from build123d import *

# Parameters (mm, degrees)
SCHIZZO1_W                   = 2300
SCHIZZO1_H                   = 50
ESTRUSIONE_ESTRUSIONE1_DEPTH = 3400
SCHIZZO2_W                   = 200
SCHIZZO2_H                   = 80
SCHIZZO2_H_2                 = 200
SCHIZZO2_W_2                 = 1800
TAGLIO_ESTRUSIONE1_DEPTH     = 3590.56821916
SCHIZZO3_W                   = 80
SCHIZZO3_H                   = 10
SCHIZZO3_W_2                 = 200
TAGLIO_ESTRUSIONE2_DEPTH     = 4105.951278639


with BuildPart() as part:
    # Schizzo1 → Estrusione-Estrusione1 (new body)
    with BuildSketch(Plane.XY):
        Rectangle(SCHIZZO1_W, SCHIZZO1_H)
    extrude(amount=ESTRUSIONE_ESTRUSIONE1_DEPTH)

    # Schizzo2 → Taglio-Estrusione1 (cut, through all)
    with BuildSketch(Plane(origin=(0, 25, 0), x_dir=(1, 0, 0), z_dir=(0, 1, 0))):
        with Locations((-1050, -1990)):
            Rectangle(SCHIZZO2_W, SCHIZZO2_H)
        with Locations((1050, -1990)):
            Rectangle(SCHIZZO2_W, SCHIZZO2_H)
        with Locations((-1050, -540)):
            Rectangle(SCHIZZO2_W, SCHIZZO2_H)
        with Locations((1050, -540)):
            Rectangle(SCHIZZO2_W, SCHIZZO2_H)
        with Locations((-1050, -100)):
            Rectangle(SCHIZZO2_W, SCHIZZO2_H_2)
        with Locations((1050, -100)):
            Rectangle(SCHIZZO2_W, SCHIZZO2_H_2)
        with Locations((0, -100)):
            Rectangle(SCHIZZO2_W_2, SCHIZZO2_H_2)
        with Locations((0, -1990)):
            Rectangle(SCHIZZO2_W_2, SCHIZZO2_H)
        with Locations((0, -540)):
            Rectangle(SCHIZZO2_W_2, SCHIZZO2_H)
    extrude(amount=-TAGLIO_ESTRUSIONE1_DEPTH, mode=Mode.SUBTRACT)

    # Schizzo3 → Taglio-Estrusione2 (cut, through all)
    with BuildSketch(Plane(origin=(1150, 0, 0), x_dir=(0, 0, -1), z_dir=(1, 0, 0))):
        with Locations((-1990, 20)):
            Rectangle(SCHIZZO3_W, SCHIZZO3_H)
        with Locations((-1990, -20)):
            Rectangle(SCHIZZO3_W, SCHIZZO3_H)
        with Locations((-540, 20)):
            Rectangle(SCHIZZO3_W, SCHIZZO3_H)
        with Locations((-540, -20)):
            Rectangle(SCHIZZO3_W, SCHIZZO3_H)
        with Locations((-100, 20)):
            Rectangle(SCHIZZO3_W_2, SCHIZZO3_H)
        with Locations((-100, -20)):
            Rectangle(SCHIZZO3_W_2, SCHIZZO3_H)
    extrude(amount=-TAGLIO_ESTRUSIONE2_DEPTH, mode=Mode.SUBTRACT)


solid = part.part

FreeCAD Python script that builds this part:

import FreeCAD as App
import Part
import Sketcher
Q = App.Units.Quantity

doc = App.newDocument("Part")
body = doc.addObject("PartDesign::Body", "Body")

sketch1 = doc.addObject("Sketcher::SketchObject", "Sketch")
body.addObject(sketch1)
sketch1.AttachmentSupport = (doc.XY_Plane, [""])
sketch1.MapMode = "FlatFace"
sketch1.addGeometry(Part.LineSegment(App.Vector(-1150, 25, 0), App.Vector(-1150, -25, 0)), False)
sketch1.addGeometry(Part.LineSegment(App.Vector(-1150, -25, 0), App.Vector(1150, -25, 0)), False)
sketch1.addGeometry(Part.LineSegment(App.Vector(1150, -25, 0), App.Vector(1150, 25, 0)), False)
sketch1.addGeometry(Part.LineSegment(App.Vector(1150, 25, 0), App.Vector(-1150, 25, 0)), False)
sketch1.addConstraint(Sketcher.Constraint("Coincident", 0, 2, 1, 1))
sketch1.addConstraint(Sketcher.Constraint("Coincident", 1, 2, 2, 1))
sketch1.addConstraint(Sketcher.Constraint("Coincident", 2, 2, 3, 1))
sketch1.addConstraint(Sketcher.Constraint("Coincident", 3, 2, 0, 1))
sketch1.addConstraint(Sketcher.Constraint("Vertical", 0))
sketch1.addConstraint(Sketcher.Constraint("Horizontal", 1))
sketch1.addConstraint(Sketcher.Constraint("Vertical", 2))
sketch1.addConstraint(Sketcher.Constraint("Horizontal", 3))
sketch1.addConstraint(Sketcher.Constraint("Symmetric", 0, 2, 2, 2, -1, 1))
sketch1.addConstraint(Sketcher.Constraint("DistanceX", 1, 1, 1, 2, Q("2300 mm")))
sketch1.addConstraint(Sketcher.Constraint("DistanceY", 0, 2, 0, 1, Q("50 mm")))
pad1 = doc.addObject("PartDesign::Pad", "Pad")
body.addObject(pad1)
pad1.Profile = sketch1
pad1.Length = 3400

sketch2 = doc.addObject("Sketcher::SketchObject", "Sketch001")
body.addObject(sketch2)
sketch2.AttachmentSupport = (doc.XZ_Plane, [""])
sketch2.MapMode = "FlatFace"
sketch2.AttachmentOffset = App.Placement(App.Vector(0, 0, -25), App.Rotation())
sketch2.addGeometry(Part.LineSegment(App.Vector(-1150, 1950, 0), App.Vector(-1150, 2030, 0)), False)
sketch2.addGeometry(Part.LineSegment(App.Vector(-1150, 2030, 0), App.Vector(-950, 2030, 0)), False)
sketch2.addGeometry(Part.LineSegment(App.Vector(-950, 2030, 0), App.Vector(-950, 1950, 0)), False)
sketch2.addGeometry(Part.LineSegment(App.Vector(-950, 1950, 0), App.Vector(-1150, 1950, 0)), False)
sketch2.addGeometry(Part.LineSegment(App.Vector(950, 1950, 0), App.Vector(950, 2030, 0)), False)
sketch2.addGeometry(Part.LineSegment(App.Vector(950, 2030, 0), App.Vector(1150, 2030, 0)), False)
sketch2.addGeometry(Part.LineSegment(App.Vector(1150, 2030, 0), App.Vector(1150, 1950, 0)), False)
sketch2.addGeometry(Part.LineSegment(App.Vector(1150, 1950, 0), App.Vector(950, 1950, 0)), False)
sketch2.addGeometry(Part.LineSegment(App.Vector(-1150, 500, 0), App.Vector(-1150, 580, 0)), False)
sketch2.addGeometry(Part.LineSegment(App.Vector(-1150, 580, 0), App.Vector(-950, 580, 0)), False)
sketch2.addGeometry(Part.LineSegment(App.Vector(-950, 580, 0), App.Vector(-950, 500, 0)), False)
sketch2.addGeometry(Part.LineSegment(App.Vector(-950, 500, 0), App.Vector(-1150, 500, 0)), False)
sketch2.addGeometry(Part.LineSegment(App.Vector(950, 500, 0), App.Vector(950, 580, 0)), False)
sketch2.addGeometry(Part.LineSegment(App.Vector(950, 580, 0), App.Vector(1150, 580, 0)), False)
sketch2.addGeometry(Part.LineSegment(App.Vector(1150, 580, 0), App.Vector(1150, 500, 0)), False)
sketch2.addGeometry(Part.LineSegment(App.Vector(1150, 500, 0), App.Vector(950, 500, 0)), False)
sketch2.addGeometry(Part.LineSegment(App.Vector(-1150, 0, 0), App.Vector(-1150, 200, 0)), False)
sketch2.addGeometry(Part.LineSegment(App.Vector(-1150, 200, 0), App.Vector(-950, 200, 0)), False)
sketch2.addGeometry(Part.LineSegment(App.Vector(-950, 200, 0), App.Vector(-950, 0, 0)), False)
sketch2.addGeometry(Part.LineSegment(App.Vector(-950, 0, 0), App.Vector(-1150, 0, 0)), False)
sketch2.addGeometry(Part.LineSegment(App.Vector(950, 0, 0), App.Vector(950, 200, 0)), False)
sketch2.addGeometry(Part.LineSegment(App.Vector(950, 200, 0), App.Vector(1150, 200, 0)), False)
sketch2.addGeometry(Part.LineSegment(App.Vector(1150, 200, 0), App.Vector(1150, 0, 0)), False)
sketch2.addGeometry(Part.LineSegment(App.Vector(1150, 0, 0), App.Vector(950, 0, 0)), False)
sketch2.addGeometry(Part.LineSegment(App.Vector(-900, 0, 0), App.Vector(-900, 200, 0)), False)
sketch2.addGeometry(Part.LineSegment(App.Vector(-900, 200, 0), App.Vector(900, 200, 0)), False)
sketch2.addGeometry(Part.LineSegment(App.Vector(900, 200, 0), App.Vector(900, 0, 0)), False)
sketch2.addGeometry(Part.LineSegment(App.Vector(900, 0, 0), App.Vector(-900, 0, 0)), False)
sketch2.addGeometry(Part.LineSegment(App.Vector(-900, 1950, 0), App.Vector(-900, 2030, 0)), False)
sketch2.addGeometry(Part.LineSegment(App.Vector(-900, 2030, 0), App.Vector(900, 2030, 0)), False)
sketch2.addGeometry(Part.LineSegment(App.Vector(900, 2030, 0), App.Vector(900, 1950, 0)), False)
sketch2.addGeometry(Part.LineSegment(App.Vector(900, 1950, 0), App.Vector(-900, 1950, 0)), False)
sketch2.addGeometry(Part.LineSegment(App.Vector(-900, 500, 0), App.Vector(-900, 580, 0)), False)
sketch2.addGeometry(Part.LineSegment(App.Vector(-900, 580, 0), App.Vector(900, 580, 0)), False)
sketch2.addGeometry(Part.LineSegment(App.Vector(900, 580, 0), App.Vector(900, 500, 0)), False)
sketch2.addGeometry(Part.LineSegment(App.Vector(900, 500, 0), App.Vector(-900, 500, 0)), False)
sketch2.addConstraint(Sketcher.Constraint("Coincident", 0, 2, 1, 1))
sketch2.addConstraint(Sketcher.Constraint("Coincident", 1, 2, 2, 1))
sketch2.addConstraint(Sketcher.Constraint("Coincident", 2, 2, 3, 1))
sketch2.addConstraint(Sketcher.Constraint("Coincident", 3, 2, 0, 1))
sketch2.addConstraint(Sketcher.Constraint("Coincident", 4, 2, 5, 1))
sketch2.addConstraint(Sketcher.Constraint("Coincident", 5, 2, 6, 1))
sketch2.addConstraint(Sketcher.Constraint("Coincident", 6, 2, 7, 1))
sketch2.addConstraint(Sketcher.Constraint("Coincident", 7, 2, 4, 1))
sketch2.addConstraint(Sketcher.Constraint("Coincident", 8, 2, 9, 1))
sketch2.addConstraint(Sketcher.Constraint("Coincident", 9, 2, 10, 1))
sketch2.addConstraint(Sketcher.Constraint("Coincident", 10, 2, 11, 1))
sketch2.addConstraint(Sketcher.Constraint("Coincident", 11, 2, 8, 1))
sketch2.addConstraint(Sketcher.Constraint("Coincident", 12, 2, 13, 1))
sketch2.addConstraint(Sketcher.Constraint("Coincident", 13, 2, 14, 1))
sketch2.addConstraint(Sketcher.Constraint("Coincident", 14, 2, 15, 1))
sketch2.addConstraint(Sketcher.Constraint("Coincident", 15, 2, 12, 1))
sketch2.addConstraint(Sketcher.Constraint("Coincident", 16, 2, 17, 1))
sketch2.addConstraint(Sketcher.Constraint("Coincident", 17, 2, 18, 1))
sketch2.addConstraint(Sketcher.Constraint("Coincident", 18, 2, 19, 1))
sketch2.addConstraint(Sketcher.Constraint("Coincident", 19, 2, 16, 1))
sketch2.addConstraint(Sketcher.Constraint("Coincident", 20, 2, 21, 1))
sketch2.addConstraint(Sketcher.Constraint("Coincident", 21, 2, 22, 1))
sketch2.addConstraint(Sketcher.Constraint("Coincident", 22, 2, 23, 1))
sketch2.addConstraint(Sketcher.Constraint("Coincident", 23, 2, 20, 1))
sketch2.addConstraint(Sketcher.Constraint("Coincident", 24, 2, 25, 1))
sketch2.addConstraint(Sketcher.Constraint("Coincident", 25, 2, 26, 1))
sketch2.addConstraint(Sketcher.Constraint("Coincident", 26, 2, 27, 1))
sketch2.addConstraint(Sketcher.Constraint("Coincident", 27, 2, 24, 1))
sketch2.addConstraint(Sketcher.Constraint("Coincident", 28, 2, 29, 1))
sketch2.addConstraint(Sketcher.Constraint("Coincident", 29, 2, 30, 1))
sketch2.addConstraint(Sketcher.Constraint("Coincident", 30, 2, 31, 1))
sketch2.addConstraint(Sketcher.Constraint("Coincident", 31, 2, 28, 1))
sketch2.addConstraint(Sketcher.Constraint("Coincident", 32, 2, 33, 1))
sketch2.addConstraint(Sketcher.Constraint("Coincident", 33, 2, 34, 1))
sketch2.addConstraint(Sketcher.Constraint("Coincident", 34, 2, 35, 1))
sketch2.addConstraint(Sketcher.Constraint("Coincident", 35, 2, 32, 1))
sketch2.addConstraint(Sketcher.Constraint("Vertical", 0))
sketch2.addConstraint(Sketcher.Constraint("Horizontal", 1))
sketch2.addConstraint(Sketcher.Constraint("Vertical", 2))
sketch2.addConstraint(Sketcher.Constraint("Horizontal", 3))
sketch2.addConstraint(Sketcher.Constraint("Vertical", 4))
sketch2.addConstraint(Sketcher.Constraint("Horizontal", 5))
sketch2.addConstraint(Sketcher.Constraint("Vertical", 6))
sketch2.addConstraint(Sketcher.Constraint("Horizontal", 7))
sketch2.addConstraint(Sketcher.Constraint("Vertical", 8))
sketch2.addConstraint(Sketcher.Constraint("Horizontal", 9))
sketch2.addConstraint(Sketcher.Constraint("Vertical", 10))
sketch2.addConstraint(Sketcher.Constraint("Horizontal", 11))
sketch2.addConstraint(Sketcher.Constraint("Vertical", 12))
sketch2.addConstraint(Sketcher.Constraint("Horizontal", 13))
sketch2.addConstraint(Sketcher.Constraint("Vertical", 14))
sketch2.addConstraint(Sketcher.Constraint("Horizontal", 15))
sketch2.addConstraint(Sketcher.Constraint("Vertical", 16))
sketch2.addConstraint(Sketcher.Constraint("Horizontal", 17))
sketch2.addConstraint(Sketcher.Constraint("Vertical", 18))
sketch2.addConstraint(Sketcher.Constraint("Horizontal", 19))
sketch2.addConstraint(Sketcher.Constraint("Vertical", 20))
sketch2.addConstraint(Sketcher.Constraint("Horizontal", 21))
sketch2.addConstraint(Sketcher.Constraint("Vertical", 22))
sketch2.addConstraint(Sketcher.Constraint("Horizontal", 23))
sketch2.addConstraint(Sketcher.Constraint("Vertical", 24))
sketch2.addConstraint(Sketcher.Constraint("Horizontal", 25))
sketch2.addConstraint(Sketcher.Constraint("Vertical", 26))
sketch2.addConstraint(Sketcher.Constraint("Horizontal", 27))
sketch2.addConstraint(Sketcher.Constraint("Vertical", 28))
sketch2.addConstraint(Sketcher.Constraint("Horizontal", 29))
sketch2.addConstraint(Sketcher.Constraint("Vertical", 30))
sketch2.addConstraint(Sketcher.Constraint("Horizontal", 31))
sketch2.addConstraint(Sketcher.Constraint("Vertical", 32))
sketch2.addConstraint(Sketcher.Constraint("Horizontal", 33))
sketch2.addConstraint(Sketcher.Constraint("Vertical", 34))
sketch2.addConstraint(Sketcher.Constraint("Horizontal", 35))
sketch2.addConstraint(Sketcher.Constraint("Symmetric", 19, 2, 22, 2, -1, 1))
sketch2.addConstraint(Sketcher.Constraint("Symmetric", 26, 2, 27, 2, -1, 1))
sketch2.addConstraint(Sketcher.Constraint("Symmetric", 1, 2, 4, 2, -2))
sketch2.addConstraint(Sketcher.Constraint("Symmetric", 3, 2, 6, 2, -2))
sketch2.addConstraint(Sketcher.Constraint("Symmetric", 9, 2, 12, 2, -2))
sketch2.addConstraint(Sketcher.Constraint("Symmetric", 11, 2, 14, 2, -2))
sketch2.addConstraint(Sketcher.Constraint("Symmetric", 17, 2, 20, 2, -2))
sketch2.addConstraint(Sketcher.Constraint("PointOnObject", 18, 2, -1))
sketch2.addConstraint(Sketcher.Constraint("Horizontal", 21, 2, 24, 2))
sketch2.addConstraint(Sketcher.Constraint("Horizontal", 5, 2, 28, 2))
sketch2.addConstraint(Sketcher.Constraint("Horizontal", 7, 2, 30, 2))
sketch2.addConstraint(Sketcher.Constraint("Horizontal", 13, 2, 32, 2))
sketch2.addConstraint(Sketcher.Constraint("Horizontal", 15, 2, 34, 2))
sketch2.addConstraint(Sketcher.Constraint("Vertical", 3, 2, 8, 2))
sketch2.addConstraint(Sketcher.Constraint("Vertical", 2, 2, 9, 2))
sketch2.addConstraint(Sketcher.Constraint("Vertical", 11, 2, 16, 2))
sketch2.addConstraint(Sketcher.Constraint("Vertical", 10, 2, 17, 2))
sketch2.addConstraint(Sketcher.Constraint("Vertical", 27, 2, 28, 2))
sketch2.addConstraint(Sketcher.Constraint("Vertical", 26, 2, 29, 2))
sketch2.addConstraint(Sketcher.Constraint("Vertical", 31, 2, 32, 2))
sketch2.addConstraint(Sketcher.Constraint("Vertical", 30, 2, 33, 2))
sketch2.addConstraint(Sketcher.Constraint("Equal", 6, 8))
sketch2.addConstraint(Sketcher.Constraint("Equal", 23, 16))
sketch2.addConstraint(Sketcher.Constraint("DistanceX", 1, 1, 1, 2, Q("200 mm")))
sketch2.addConstraint(Sketcher.Constraint("DistanceX", 25, 1, 25, 2, Q("1800 mm")))
sketch2.addConstraint(Sketcher.Constraint("DistanceY", 0, 1, 0, 2, Q("80 mm")))
sketch2.addConstraint(Sketcher.Constraint("DistanceX", 0, 2, -1, 1, Q("1150 mm")))
sketch2.addConstraint(Sketcher.Constraint("DistanceY", -1, 1, 0, 2, Q("2030 mm")))
sketch2.addConstraint(Sketcher.Constraint("DistanceY", -1, 1, 8, 2, Q("580 mm")))
pocket1 = doc.addObject("PartDesign::Pocket", "Pocket")
body.addObject(pocket1)
pocket1.Profile = sketch2
pocket1.Type = "ThroughAll"
pocket1.Reversed = True

sketch3 = doc.addObject("Sketcher::SketchObject", "Sketch002")
body.addObject(sketch3)
sketch3.AttachmentSupport = (doc.YZ_Plane, [""])
sketch3.MapMode = "FlatFace"
sketch3.AttachmentOffset = App.Placement(App.Vector(0, 0, 1150), App.Rotation())
sketch3.addGeometry(Part.LineSegment(App.Vector(25, 2030, 0), App.Vector(15, 2030, 0)), False)
sketch3.addGeometry(Part.LineSegment(App.Vector(15, 2030, 0), App.Vector(15, 1950, 0)), False)
sketch3.addGeometry(Part.LineSegment(App.Vector(15, 1950, 0), App.Vector(25, 1950, 0)), False)
sketch3.addGeometry(Part.LineSegment(App.Vector(25, 1950, 0), App.Vector(25, 2030, 0)), False)
sketch3.addGeometry(Part.LineSegment(App.Vector(-15, 2030, 0), App.Vector(-25, 2030, 0)), False)
sketch3.addGeometry(Part.LineSegment(App.Vector(-25, 2030, 0), App.Vector(-25, 1950, 0)), False)
sketch3.addGeometry(Part.LineSegment(App.Vector(-25, 1950, 0), App.Vector(-15, 1950, 0)), False)
sketch3.addGeometry(Part.LineSegment(App.Vector(-15, 1950, 0), App.Vector(-15, 2030, 0)), False)
sketch3.addGeometry(Part.LineSegment(App.Vector(25, 580, 0), App.Vector(15, 580, 0)), False)
sketch3.addGeometry(Part.LineSegment(App.Vector(15, 580, 0), App.Vector(15, 500, 0)), False)
sketch3.addGeometry(Part.LineSegment(App.Vector(15, 500, 0), App.Vector(25, 500, 0)), False)
sketch3.addGeometry(Part.LineSegment(App.Vector(25, 500, 0), App.Vector(25, 580, 0)), False)
sketch3.addGeometry(Part.LineSegment(App.Vector(-15, 580, 0), App.Vector(-25, 580, 0)), False)
sketch3.addGeometry(Part.LineSegment(App.Vector(-25, 580, 0), App.Vector(-25, 500, 0)), False)
sketch3.addGeometry(Part.LineSegment(App.Vector(-25, 500, 0), App.Vector(-15, 500, 0)), False)
sketch3.addGeometry(Part.LineSegment(App.Vector(-15, 500, 0), App.Vector(-15, 580, 0)), False)
sketch3.addGeometry(Part.LineSegment(App.Vector(25, 200, 0), App.Vector(15, 200, 0)), False)
sketch3.addGeometry(Part.LineSegment(App.Vector(15, 200, 0), App.Vector(15, 0, 0)), False)
sketch3.addGeometry(Part.LineSegment(App.Vector(15, 0, 0), App.Vector(25, 0, 0)), False)
sketch3.addGeometry(Part.LineSegment(App.Vector(25, 0, 0), App.Vector(25, 200, 0)), False)
sketch3.addGeometry(Part.LineSegment(App.Vector(-15, 200, 0), App.Vector(-25, 200, 0)), False)
sketch3.addGeometry(Part.LineSegment(App.Vector(-25, 200, 0), App.Vector(-25, 0, 0)), False)
sketch3.addGeometry(Part.LineSegment(App.Vector(-25, 0, 0), App.Vector(-15, 0, 0)), False)
sketch3.addGeometry(Part.LineSegment(App.Vector(-15, 0, 0), App.Vector(-15, 200, 0)), False)
sketch3.addConstraint(Sketcher.Constraint("Coincident", 0, 2, 1, 1))
sketch3.addConstraint(Sketcher.Constraint("Coincident", 1, 2, 2, 1))
sketch3.addConstraint(Sketcher.Constraint("Coincident", 2, 2, 3, 1))
sketch3.addConstraint(Sketcher.Constraint("Coincident", 3, 2, 0, 1))
sketch3.addConstraint(Sketcher.Constraint("Coincident", 4, 2, 5, 1))
sketch3.addConstraint(Sketcher.Constraint("Coincident", 5, 2, 6, 1))
sketch3.addConstraint(Sketcher.Constraint("Coincident", 6, 2, 7, 1))
sketch3.addConstraint(Sketcher.Constraint("Coincident", 7, 2, 4, 1))
sketch3.addConstraint(Sketcher.Constraint("Coincident", 8, 2, 9, 1))
sketch3.addConstraint(Sketcher.Constraint("Coincident", 9, 2, 10, 1))
sketch3.addConstraint(Sketcher.Constraint("Coincident", 10, 2, 11, 1))
sketch3.addConstraint(Sketcher.Constraint("Coincident", 11, 2, 8, 1))
sketch3.addConstraint(Sketcher.Constraint("Coincident", 12, 2, 13, 1))
sketch3.addConstraint(Sketcher.Constraint("Coincident", 13, 2, 14, 1))
sketch3.addConstraint(Sketcher.Constraint("Coincident", 14, 2, 15, 1))
sketch3.addConstraint(Sketcher.Constraint("Coincident", 15, 2, 12, 1))
sketch3.addConstraint(Sketcher.Constraint("Coincident", 16, 2, 17, 1))
sketch3.addConstraint(Sketcher.Constraint("Coincident", 17, 2, 18, 1))
sketch3.addConstraint(Sketcher.Constraint("Coincident", 18, 2, 19, 1))
sketch3.addConstraint(Sketcher.Constraint("Coincident", 19, 2, 16, 1))
sketch3.addConstraint(Sketcher.Constraint("Coincident", 20, 2, 21, 1))
sketch3.addConstraint(Sketcher.Constraint("Coincident", 21, 2, 22, 1))
sketch3.addConstraint(Sketcher.Constraint("Coincident", 22, 2, 23, 1))
sketch3.addConstraint(Sketcher.Constraint("Coincident", 23, 2, 20, 1))
sketch3.addConstraint(Sketcher.Constraint("Horizontal", 0))
sketch3.addConstraint(Sketcher.Constraint("Vertical", 1))
sketch3.addConstraint(Sketcher.Constraint("Horizontal", 2))
sketch3.addConstraint(Sketcher.Constraint("Vertical", 3))
sketch3.addConstraint(Sketcher.Constraint("Horizontal", 4))
sketch3.addConstraint(Sketcher.Constraint("Vertical", 5))
sketch3.addConstraint(Sketcher.Constraint("Horizontal", 6))
sketch3.addConstraint(Sketcher.Constraint("Vertical", 7))
sketch3.addConstraint(Sketcher.Constraint("Horizontal", 8))
sketch3.addConstraint(Sketcher.Constraint("Vertical", 9))
sketch3.addConstraint(Sketcher.Constraint("Horizontal", 10))
sketch3.addConstraint(Sketcher.Constraint("Vertical", 11))
sketch3.addConstraint(Sketcher.Constraint("Horizontal", 12))
sketch3.addConstraint(Sketcher.Constraint("Vertical", 13))
sketch3.addConstraint(Sketcher.Constraint("Horizontal", 14))
sketch3.addConstraint(Sketcher.Constraint("Vertical", 15))
sketch3.addConstraint(Sketcher.Constraint("Horizontal", 16))
sketch3.addConstraint(Sketcher.Constraint("Vertical", 17))
sketch3.addConstraint(Sketcher.Constraint("Horizontal", 18))
sketch3.addConstraint(Sketcher.Constraint("Vertical", 19))
sketch3.addConstraint(Sketcher.Constraint("Horizontal", 20))
sketch3.addConstraint(Sketcher.Constraint("Vertical", 21))
sketch3.addConstraint(Sketcher.Constraint("Horizontal", 22))
sketch3.addConstraint(Sketcher.Constraint("Vertical", 23))
sketch3.addConstraint(Sketcher.Constraint("Symmetric", 18, 2, 21, 2, -1, 1))
sketch3.addConstraint(Sketcher.Constraint("Symmetric", 3, 2, 4, 2, -2))
sketch3.addConstraint(Sketcher.Constraint("Symmetric", 1, 2, 6, 2, -2))
sketch3.addConstraint(Sketcher.Constraint("Symmetric", 11, 2, 12, 2, -2))
sketch3.addConstraint(Sketcher.Constraint("Symmetric", 9, 2, 14, 2, -2))
sketch3.addConstraint(Sketcher.Constraint("Symmetric", 17, 2, 22, 2, -2))
sketch3.addConstraint(Sketcher.Constraint("Horizontal", 19, 2, 20, 2))
sketch3.addConstraint(Sketcher.Constraint("Vertical", 1, 2, 8, 2))
sketch3.addConstraint(Sketcher.Constraint("Vertical", 3, 2, 10, 2))
sketch3.addConstraint(Sketcher.Constraint("Vertical", 9, 2, 16, 2))
sketch3.addConstraint(Sketcher.Constraint("Vertical", 11, 2, 18, 2))
sketch3.addConstraint(Sketcher.Constraint("Equal", 7, 9))
sketch3.addConstraint(Sketcher.Constraint("DistanceX", 0, 2, 0, 1, Q("10 mm")))
sketch3.addConstraint(Sketcher.Constraint("DistanceY", 1, 2, 1, 1, Q("80 mm")))
sketch3.addConstraint(Sketcher.Constraint("DistanceY", 17, 2, 17, 1, Q("200 mm")))
sketch3.addConstraint(Sketcher.Constraint("DistanceX", -1, 1, 0, 2, Q("15 mm")))
sketch3.addConstraint(Sketcher.Constraint("DistanceY", -1, 1, 0, 2, Q("2030 mm")))
sketch3.addConstraint(Sketcher.Constraint("DistanceY", -1, 1, 8, 2, Q("580 mm")))
pocket2 = doc.addObject("PartDesign::Pocket", "Pocket001")
body.addObject(pocket2)
pocket2.Profile = sketch3
pocket2.Type = "ThroughAll"

doc.recompute()
